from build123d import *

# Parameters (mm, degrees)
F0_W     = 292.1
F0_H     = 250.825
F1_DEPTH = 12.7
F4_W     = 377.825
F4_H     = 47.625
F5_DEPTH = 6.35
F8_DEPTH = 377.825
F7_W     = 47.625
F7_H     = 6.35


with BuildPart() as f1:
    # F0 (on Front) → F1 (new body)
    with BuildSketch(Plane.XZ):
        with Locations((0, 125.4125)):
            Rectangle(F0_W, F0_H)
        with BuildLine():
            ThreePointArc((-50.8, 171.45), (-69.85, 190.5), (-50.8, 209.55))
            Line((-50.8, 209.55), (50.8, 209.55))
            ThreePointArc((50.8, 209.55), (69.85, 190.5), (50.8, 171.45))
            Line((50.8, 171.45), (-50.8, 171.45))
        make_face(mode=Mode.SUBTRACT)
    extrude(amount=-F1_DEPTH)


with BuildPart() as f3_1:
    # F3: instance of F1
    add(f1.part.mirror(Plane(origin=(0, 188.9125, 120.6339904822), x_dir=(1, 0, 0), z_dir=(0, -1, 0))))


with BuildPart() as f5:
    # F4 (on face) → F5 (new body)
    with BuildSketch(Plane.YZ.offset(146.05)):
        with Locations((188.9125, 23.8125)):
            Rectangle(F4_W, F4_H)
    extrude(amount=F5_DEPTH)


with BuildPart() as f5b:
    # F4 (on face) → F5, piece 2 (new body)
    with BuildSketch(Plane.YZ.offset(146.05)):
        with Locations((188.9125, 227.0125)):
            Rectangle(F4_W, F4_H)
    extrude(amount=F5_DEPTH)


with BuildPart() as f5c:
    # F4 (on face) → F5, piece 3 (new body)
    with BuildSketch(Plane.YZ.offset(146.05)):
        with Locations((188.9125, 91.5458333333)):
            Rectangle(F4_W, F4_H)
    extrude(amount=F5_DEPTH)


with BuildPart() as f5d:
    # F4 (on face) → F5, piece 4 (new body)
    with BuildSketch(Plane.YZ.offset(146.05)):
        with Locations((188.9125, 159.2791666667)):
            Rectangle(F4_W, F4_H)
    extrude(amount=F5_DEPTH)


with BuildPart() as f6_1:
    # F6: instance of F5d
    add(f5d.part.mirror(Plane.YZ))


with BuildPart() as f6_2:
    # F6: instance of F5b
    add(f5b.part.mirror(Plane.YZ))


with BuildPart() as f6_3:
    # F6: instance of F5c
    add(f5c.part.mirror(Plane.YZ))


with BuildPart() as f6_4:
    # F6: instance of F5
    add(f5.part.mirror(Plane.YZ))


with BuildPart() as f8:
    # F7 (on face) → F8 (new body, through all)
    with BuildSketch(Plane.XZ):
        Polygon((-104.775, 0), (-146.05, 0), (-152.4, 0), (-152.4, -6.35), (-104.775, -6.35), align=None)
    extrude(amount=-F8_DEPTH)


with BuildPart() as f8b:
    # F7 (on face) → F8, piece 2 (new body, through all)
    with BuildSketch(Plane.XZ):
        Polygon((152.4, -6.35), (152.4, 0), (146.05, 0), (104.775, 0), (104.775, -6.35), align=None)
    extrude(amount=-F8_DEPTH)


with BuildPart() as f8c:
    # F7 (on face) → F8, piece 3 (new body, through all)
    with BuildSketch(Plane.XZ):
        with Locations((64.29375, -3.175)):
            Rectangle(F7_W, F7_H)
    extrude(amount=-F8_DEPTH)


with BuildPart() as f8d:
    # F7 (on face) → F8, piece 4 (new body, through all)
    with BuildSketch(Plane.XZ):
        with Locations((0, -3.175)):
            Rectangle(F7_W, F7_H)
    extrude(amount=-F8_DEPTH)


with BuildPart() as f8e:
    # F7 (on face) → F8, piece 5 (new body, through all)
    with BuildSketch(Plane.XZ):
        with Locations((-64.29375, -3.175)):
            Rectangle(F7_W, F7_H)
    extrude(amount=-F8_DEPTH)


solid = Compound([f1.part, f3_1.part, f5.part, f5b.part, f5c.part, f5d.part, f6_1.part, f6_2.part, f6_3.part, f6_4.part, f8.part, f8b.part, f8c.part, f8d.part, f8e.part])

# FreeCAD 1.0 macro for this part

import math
import FreeCAD as App
import Part
import Sketcher

V = App.Vector
Q = App.Units.Quantity


def add_polygon(sketch, points):
    """Adds a closed chain of lines whose ends are joined by coincident constraints."""
    first, n = sketch.GeometryCount, len(points)
    for a, b in zip(points, points[1:] + points[:1]):
        sketch.addGeometry(Part.LineSegment(App.Vector(*a, 0), App.Vector(*b, 0)), False)
    for i in range(n):
        sketch.addConstraint(Sketcher.Constraint("Coincident", first + i, 2, first + (i + 1) % n, 1))

doc = App.newDocument("Part")
body = doc.addObject("PartDesign::Body", "Body")

# Sketch on XZ plane
sketch1 = body.newObject("Sketcher::SketchObject", "Sketch")
sketch1.AttachmentSupport = (doc.getObject("XZ_Plane"), [""])
sketch1.MapMode = "FlatFace"
add_polygon(sketch1, [(-146, 251), (-146, 0), (146, 0), (146, 251)])  # lines 0-3
sketch1.addGeometry(Part.LineSegment(V(51, 171, 0), V(-51, 171, 0)), False)  # 4
sketch1.addGeometry(Part.ArcOfCircle(Part.Circle(V(-51, 190, 0), V(0, 0, 1), 19), math.radians(90), math.radians(270)), False)  # 5
sketch1.addGeometry(Part.LineSegment(V(-51, 210, 0), V(51, 210, 0)), False)  # 6
sketch1.addGeometry(Part.ArcOfCircle(Part.Circle(V(51, 190, 0), V(0, 0, 1), 19), math.radians(-90), math.radians(90)), False)  # 7
sketch1.addConstraint([
    Sketcher.Constraint("Tangent", 4, 2, 5, 2),
    Sketcher.Constraint("Tangent", 5, 1, 6, 1),
    Sketcher.Constraint("Tangent", 6, 2, 7, 2),
    Sketcher.Constraint("Tangent", 7, 1, 4, 1),
    Sketcher.Constraint("Vertical", 0),
    Sketcher.Constraint("Horizontal", 1),
    Sketcher.Constraint("Vertical", 2),
    Sketcher.Constraint("Horizontal", 3),
    Sketcher.Constraint("Horizontal", 4),
    Sketcher.Constraint("Horizontal", 6),
    Sketcher.Constraint("Symmetric", 0, 2, 1, 2, -1, 1),
    Sketcher.Constraint("DistanceX", 4, 2, 4, 1, Q("4 in")),
    Sketcher.Constraint("Radius", 5, Q("0.75 in")),
    Sketcher.Constraint("DistanceX", 1, 1, 1, 2, Q("11.5 in")),
    Sketcher.Constraint("DistanceX", 5, 3, -1, 1, Q("2 in")),
    Sketcher.Constraint("DistanceY", -1, 1, 5, 3, Q("7.5 in")),
    Sketcher.Constraint("DistanceY", 0, 2, 0, 1, Q("9.875 in")),
])
pad1 = body.newObject("PartDesign::Pad", "Pad")
pad1.Profile = sketch1
pad1.Length = Q("0.5 in")
pad1.Reversed = True
body2 = doc.addObject("PartDesign::Body", "Body001")
doc.recompute()

mirroring = doc.addObject("Part::Mirroring", "Mirroring")
mirroring.Source = body
mirroring.Base = V(0, 188.9125, 120.63399)
mirroring.Normal = V(0, -1, 0)
body2.BaseFeature = mirroring
doc.recompute()
body3 = doc.addObject("PartDesign::Body", "Body002")

# Sketch on YZ plane
sketch2 = body3.newObject("Sketcher::SketchObject", "Sketch001")
sketch2.AttachmentSupport = (doc.getObject("YZ_Plane002"), [""])
sketch2.MapMode = "FlatFace"
sketch2.AttachmentOffset = App.Placement(V(0, 0, 5.75 * 25.4), App.Rotation())
add_polygon(sketch2, [(0, 48), (0, 0), (378, 0), (378, 48)])  # lines 0-3
sketch2.addConstraint([
    Sketcher.Constraint("Vertical", 0),
    Sketcher.Constraint("Horizontal", 1),
    Sketcher.Constraint("Vertical", 2),
    Sketcher.Constraint("Horizontal", 3),
    Sketcher.Constraint("Coincident", 0, 2, -1, 1),
    Sketcher.Constraint("DistanceX", 1, 1, 1, 2, Q("14.875 in")),
    Sketcher.Constraint("DistanceY", 0, 2, 0, 1, Q("1.875 in")),
])
pad2 = body3.newObject("PartDesign::Pad", "Pad001")
pad2.Profile = sketch2
pad2.Length = Q("0.25 in")
body4 = doc.addObject("PartDesign::Body", "Body003")

# Sketch on YZ plane
sketch3 = body4.newObject("Sketcher::SketchObject", "Sketch002")
sketch3.AttachmentSupport = (doc.getObject("YZ_Plane003"), [""])
sketch3.MapMode = "FlatFace"
sketch3.AttachmentOffset = App.Placement(V(0, 0, 5.75 * 25.4), App.Rotation())
add_polygon(sketch3, [(0, 251), (0, 203), (378, 203), (378, 251)])  # lines 0-3
sketch3.addConstraint([
    Sketcher.Constraint("Vertical", 0),
    Sketcher.Constraint("Horizontal", 1),
    Sketcher.Constraint("Vertical", 2),
    Sketcher.Constraint("Horizontal", 3),
    Sketcher.Constraint("PointOnObject", 0, 2, -2),
    Sketcher.Constraint("DistanceY", -1, 1, 0, 2, Q("8 in")),
    Sketcher.Constraint("DistanceX", 1, 1, 1, 2, Q("14.875 in")),
    Sketcher.Constraint("DistanceY", 0, 2, 0, 1, Q("1.875 in")),
])
pad3 = body4.newObject("PartDesign::Pad", "Pad002")
pad3.Profile = sketch3
pad3.Length = Q("0.25 in")
body5 = doc.addObject("PartDesign::Body", "Body004")

# Sketch on YZ plane
sketch4 = body5.newObject("Sketcher::SketchObject", "Sketch003")
sketch4.AttachmentSupport = (doc.getObject("YZ_Plane004"), [""])
sketch4.MapMode = "FlatFace"
sketch4.AttachmentOffset = App.Placement(V(0, 0, 5.75 * 25.4), App.Rotation())
add_polygon(sketch4, [(0, 115), (0, 68), (378, 68), (378, 115)])  # lines 0-3
sketch4.addConstraint([
    Sketcher.Constraint("Vertical", 0),
    Sketcher.Constraint("Horizontal", 1),
    Sketcher.Constraint("Vertical", 2),
    Sketcher.Constraint("Horizontal", 3),
    Sketcher.Constraint("PointOnObject", 0, 2, -2),
    Sketcher.Constraint("DistanceX", 1, 1, 1, 2, Q("14.875 in")),
    Sketcher.Constraint("DistanceY", 0, 2, 0, 1, Q("1.875 in")),
    Sketcher.Constraint("DistanceY", -1, 1, 0, 2, 67.733333),
])
pad4 = body5.newObject("PartDesign::Pad", "Pad003")
pad4.Profile = sketch4
pad4.Length = Q("0.25 in")
body6 = doc.addObject("PartDesign::Body", "Body005")

# Sketch on YZ plane
sketch5 = body6.newObject("Sketcher::SketchObject", "Sketch004")
sketch5.AttachmentSupport = (doc.getObject("YZ_Plane005"), [""])
sketch5.MapMode = "FlatFace"
sketch5.AttachmentOffset = App.Placement(V(0, 0, 5.75 * 25.4), App.Rotation())
add_polygon(sketch5, [(0, 183), (0, 135), (378, 135), (378, 183)])  # lines 0-3
sketch5.addConstraint([
    Sketcher.Constraint("Vertical", 0),
    Sketcher.Constraint("Horizontal", 1),
    Sketcher.Constraint("Vertical", 2),
    Sketcher.Constraint("Horizontal", 3),
    Sketcher.Constraint("PointOnObject", 0, 2, -2),
    Sketcher.Constraint("DistanceX", 1, 1, 1, 2, Q("14.875 in")),
    Sketcher.Constraint("DistanceY", 0, 2, 0, 1, Q("1.875 in")),
    Sketcher.Constraint("DistanceY", -1, 1, 0, 2, 135.466667),
])
pad5 = body6.newObject("PartDesign::Pad", "Pad004")
pad5.Profile = sketch5
pad5.Length = Q("0.25 in")
body7 = doc.addObject("PartDesign::Body", "Body006")
doc.recompute()

mirroring2 = doc.addObject("Part::Mirroring", "Mirroring001")
mirroring2.Source = body6
mirroring2.Base = V(0, 0, 0)
mirroring2.Normal = V(1, 0, 0)
body7.BaseFeature = mirroring2
doc.recompute()
body8 = doc.addObject("PartDesign::Body", "Body007")
doc.recompute()

mirroring3 = doc.addObject("Part::Mirroring", "Mirroring002")
mirroring3.Source = body4
mirroring3.Base = V(0, 0, 0)
mirroring3.Normal = V(1, 0, 0)
body8.BaseFeature = mirroring3
doc.recompute()
body9 = doc.addObject("PartDesign::Body", "Body008")
doc.recompute()

mirroring4 = doc.addObject("Part::Mirroring", "Mirroring003")
mirroring4.Source = body5
mirroring4.Base = V(0, 0, 0)
mirroring4.Normal = V(1, 0, 0)
body9.BaseFeature = mirroring4
doc.recompute()
body10 = doc.addObject("PartDesign::Body", "Body009")
doc.recompute()

mirroring5 = doc.addObject("Part::Mirroring", "Mirroring004")
mirroring5.Source = body3
mirroring5.Base = V(0, 0, 0)
mirroring5.Normal = V(1, 0, 0)
body10.BaseFeature = mirroring5
doc.recompute()
body11 = doc.addObject("PartDesign::Body", "Body010")

# Sketch on XZ plane
sketch6 = body11.newObject("Sketcher::SketchObject", "Sketch005")
sketch6.AttachmentSupport = (doc.getObject("XZ_Plane010"), [""])
sketch6.MapMode = "FlatFace"
add_polygon(sketch6, [(-105, 0), (-152, 0), (-152, -6), (-105, -6)])  # lines 0-3
sketch6.addConstraint([
    Sketcher.Constraint("Horizontal", 0),
    Sketcher.Constraint("Vertical", 1),
    Sketcher.Constraint("Horizontal", 2),
    Sketcher.Constraint("Vertical", 3),
    Sketcher.Constraint("PointOnObject", 0, 2, -1),
    Sketcher.Constraint("DistanceX", 0, 2, -1, 1, Q("6 in")),
    Sketcher.Constraint("DistanceY", 1, 2, 1, 1, Q("0.25 in")),
    Sketcher.Constraint("DistanceX", 0, 2, 0, 1, Q("1.875 in")),
])
pad6 = body11.newObject("PartDesign::Pad", "Pad005")
pad6.Profile = sketch6
pad6.Length = Q("14.875 in")
pad6.Reversed = True
body12 = doc.addObject("PartDesign::Body", "Body011")

# Sketch on XZ plane
sketch7 = body12.newObject("Sketcher::SketchObject", "Sketch006")
sketch7.AttachmentSupport = (doc.getObject("XZ_Plane011"), [""])
sketch7.MapMode = "FlatFace"
add_polygon(sketch7, [(152, -6), (152, 0), (105, 0), (105, -6)])  # lines 0-3
sketch7.addConstraint([
    Sketcher.Constraint("Vertical", 0),
    Sketcher.Constraint("Horizontal", 1),
    Sketcher.Constraint("Vertical", 2),
    Sketcher.Constraint("Horizontal", 3),
    Sketcher.Constraint("PointOnObject", 0, 2, -1),
    Sketcher.Constraint("DistanceX", -1, 1, 0, 2, Q("6 in")),
    Sketcher.Constraint("DistanceY", 0, 1, 0, 2, Q("0.25 in")),
    Sketcher.Constraint("DistanceX", 1, 2, 1, 1, Q("1.875 in")),
])
pad7 = body12.newObject("PartDesign::Pad", "Pad006")
pad7.Profile = sketch7
pad7.Length = Q("14.875 in")
pad7.Reversed = True
body13 = doc.addObject("PartDesign::Body", "Body012")

# Sketch on XZ plane
sketch8 = body13.newObject("Sketcher::SketchObject", "Sketch007")
sketch8.AttachmentSupport = (doc.getObject("XZ_Plane012"), [""])
sketch8.MapMode = "FlatFace"
add_polygon(sketch8, [(40, 0), (40, -6), (88, -6), (88, 0)])  # lines 0-3
sketch8.addConstraint([
    Sketcher.Constraint("Vertical", 0),
    Sketcher.Constraint("Horizontal", 1),
    Sketcher.Constraint("Vertical", 2),
    Sketcher.Constraint("Horizontal", 3),
    Sketcher.Constraint("PointOnObject", 2, 2, -1),
    Sketcher.Constraint("DistanceY", 0, 2, 0, 1, Q("0.25 in")),
    Sketcher.Constraint("DistanceX", 1, 1, 1, 2, Q("1.875 in")),
    Sketcher.Constraint("DistanceX", -1, 1, 0, 2, Q("1.59375 in")),
])
pad8 = body13.newObject("PartDesign::Pad", "Pad007")
pad8.Profile = sketch8
pad8.Length = Q("14.875 in")
pad8.Reversed = True
body14 = doc.addObject("PartDesign::Body", "Body013")

# Sketch on XZ plane
sketch9 = body14.newObject("Sketcher::SketchObject", "Sketch008")
sketch9.AttachmentSupport = (doc.getObject("XZ_Plane013"), [""])
sketch9.MapMode = "FlatFace"
add_polygon(sketch9, [(-24, 0), (-24, -6), (24, -6), (24, 0)])  # lines 0-3
sketch9.addConstraint([
    Sketcher.Constraint("Vertical", 0),
    Sketcher.Constraint("Horizontal", 1),
    Sketcher.Constraint("Vertical", 2),
    Sketcher.Constraint("Horizontal", 3),
    Sketcher.Constraint("Symmetric", 2, 2, 3, 2, -1, 1),
    Sketcher.Constraint("DistanceY", 0, 2, 0, 1, Q("0.25 in")),
    Sketcher.Constraint("DistanceX", 1, 1, 1, 2, Q("1.875 in")),
])
pad9 = body14.newObject("PartDesign::Pad", "Pad008")
pad9.Profile = sketch9
pad9.Length = Q("14.875 in")
pad9.Reversed = True
body15 = doc.addObject("PartDesign::Body", "Body014")

# Sketch on XZ plane
sketch10 = body15.newObject("Sketcher::SketchObject", "Sketch009")
sketch10.AttachmentSupport = (doc.getObject("XZ_Plane014"), [""])
sketch10.MapMode = "FlatFace"
add_polygon(sketch10, [(-88, 0), (-88, -6), (-40, -6), (-40, 0)])  # lines 0-3
sketch10.addConstraint([
    Sketcher.Constraint("Vertical", 0),
    Sketcher.Constraint("Horizontal", 1),
    Sketcher.Constraint("Vertical", 2),
    Sketcher.Constraint("Horizontal", 3),
    Sketcher.Constraint("PointOnObject", 2, 2, -1),
    Sketcher.Constraint("DistanceY", 0, 2, 0, 1, Q("0.25 in")),
    Sketcher.Constraint("DistanceX", 1, 1, 1, 2, Q("1.875 in")),
    Sketcher.Constraint("DistanceX", 0, 2, -1, 1, Q("3.46875 in")),
])
pad10 = body15.newObject("PartDesign::Pad", "Pad009")
pad10.Profile = sketch10
pad10.Length = Q("14.875 in")
pad10.Reversed = True
mirroring.Visibility = False
mirroring2.Visibility = False
mirroring3.Visibility = False
mirroring4.Visibility = False
mirroring5.Visibility = False

doc.recompute()
